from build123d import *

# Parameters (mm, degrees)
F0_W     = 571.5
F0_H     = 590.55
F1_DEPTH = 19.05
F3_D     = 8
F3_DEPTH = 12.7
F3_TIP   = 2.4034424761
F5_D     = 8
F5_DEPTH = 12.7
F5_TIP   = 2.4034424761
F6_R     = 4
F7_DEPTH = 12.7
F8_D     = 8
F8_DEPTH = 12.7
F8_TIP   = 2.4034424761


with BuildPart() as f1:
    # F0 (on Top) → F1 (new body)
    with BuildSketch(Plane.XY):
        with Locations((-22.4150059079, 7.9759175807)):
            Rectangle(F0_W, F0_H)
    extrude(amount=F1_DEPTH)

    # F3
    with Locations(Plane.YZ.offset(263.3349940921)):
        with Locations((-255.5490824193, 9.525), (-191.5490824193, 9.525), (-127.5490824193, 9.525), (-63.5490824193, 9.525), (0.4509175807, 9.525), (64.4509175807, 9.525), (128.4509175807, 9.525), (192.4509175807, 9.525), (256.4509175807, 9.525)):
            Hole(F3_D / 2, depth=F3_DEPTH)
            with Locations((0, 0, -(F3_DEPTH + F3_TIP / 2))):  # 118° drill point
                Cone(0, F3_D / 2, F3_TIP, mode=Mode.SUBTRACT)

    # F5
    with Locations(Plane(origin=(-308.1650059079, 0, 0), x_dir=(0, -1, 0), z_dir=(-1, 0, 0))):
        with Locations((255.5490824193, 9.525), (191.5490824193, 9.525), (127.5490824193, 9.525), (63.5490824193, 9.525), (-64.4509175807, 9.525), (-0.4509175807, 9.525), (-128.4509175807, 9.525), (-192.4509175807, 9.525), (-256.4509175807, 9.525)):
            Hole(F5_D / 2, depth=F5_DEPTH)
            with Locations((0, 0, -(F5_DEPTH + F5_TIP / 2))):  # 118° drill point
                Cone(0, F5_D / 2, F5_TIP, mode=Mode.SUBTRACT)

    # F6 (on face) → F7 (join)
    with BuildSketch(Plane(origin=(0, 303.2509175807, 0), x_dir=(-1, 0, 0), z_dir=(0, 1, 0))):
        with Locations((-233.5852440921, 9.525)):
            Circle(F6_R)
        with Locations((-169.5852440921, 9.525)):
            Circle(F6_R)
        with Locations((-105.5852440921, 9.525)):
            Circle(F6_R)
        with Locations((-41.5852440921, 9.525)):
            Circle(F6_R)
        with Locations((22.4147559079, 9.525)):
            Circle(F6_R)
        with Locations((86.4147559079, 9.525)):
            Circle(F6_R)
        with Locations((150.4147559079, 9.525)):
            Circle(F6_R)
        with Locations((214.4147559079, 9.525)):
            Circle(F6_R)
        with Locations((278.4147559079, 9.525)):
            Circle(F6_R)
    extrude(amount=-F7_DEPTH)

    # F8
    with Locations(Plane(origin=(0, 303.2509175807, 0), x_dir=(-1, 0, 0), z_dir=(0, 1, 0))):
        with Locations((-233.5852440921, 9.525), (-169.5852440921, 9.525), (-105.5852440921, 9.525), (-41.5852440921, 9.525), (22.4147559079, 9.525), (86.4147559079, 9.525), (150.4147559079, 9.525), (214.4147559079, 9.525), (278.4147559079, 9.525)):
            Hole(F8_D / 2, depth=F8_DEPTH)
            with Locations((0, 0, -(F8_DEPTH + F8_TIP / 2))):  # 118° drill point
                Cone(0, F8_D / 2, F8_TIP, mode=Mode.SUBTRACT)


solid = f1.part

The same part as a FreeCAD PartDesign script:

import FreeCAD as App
import Part
import Sketcher

V = App.Vector
Q = App.Units.Quantity

doc = App.newDocument("Part")
params = doc.addObject("Spreadsheet::Sheet", "Params")
for row, (alias, value) in enumerate([
    ("sketch1_width", "22.5 in"),
    ("sketch1_height", "23.25 in"),
    ("pad1_length", "0.75 in"),
    ("hole_diameter", "8 mm"),
    ("hole_depth", "0.5 in"),
    ("hole2_diameter", "8 mm"),
    ("hole2_depth", "0.5 in"),
    ("pad2_length", "0.5 in"),
    ("hole3_diameter", "8 mm"),
    ("hole3_depth", "0.5 in"),
], start=1):
    params.set(f"A{row}", alias)
    params.set(f"B{row}", "=" + value)
    params.setAlias(f"B{row}", alias)

body = doc.addObject("PartDesign::Body", "Body")

# Sketch on XY plane
sketch1 = body.newObject("Sketcher::SketchObject", "Sketch")
sketch1.AttachmentSupport = (doc.getObject("XY_Plane"), [""])
sketch1.MapMode = "FlatFace"
sketch1.addGeometry(Part.LineSegment(V(-308, 303, 0), V(-308, -287, 0)), False)
sketch1.addGeometry(Part.LineSegment(V(-308, -287, 0), V(263, -287, 0)), False)
sketch1.addGeometry(Part.LineSegment(V(263, -287, 0), V(263, 303, 0)), False)
sketch1.addGeometry(Part.LineSegment(V(263, 303, 0), V(-308, 303, 0)), False)
sketch1.addConstraint(Sketcher.Constraint("Coincident", 0, 2, 1, 1))
sketch1.addConstraint(Sketcher.Constraint("Coincident", 1, 2, 2, 1))
sketch1.addConstraint(Sketcher.Constraint("Coincident", 2, 2, 3, 1))
sketch1.addConstraint(Sketcher.Constraint("Coincident", 3, 2, 0, 1))
sketch1.addConstraint(Sketcher.Constraint("Vertical", 0))
sketch1.addConstraint(Sketcher.Constraint("Horizontal", 1))
sketch1.addConstraint(Sketcher.Constraint("Vertical", 2))
sketch1.addConstraint(Sketcher.Constraint("Horizontal", 3))
sketch1.addConstraint(Sketcher.Constraint("DistanceX", 1, 1, 1, 2, Q("22.5 in")))
sketch1.addConstraint(Sketcher.Constraint("DistanceY", 0, 2, 0, 1, Q("23.25 in")))
sketch1.addConstraint(Sketcher.Constraint("DistanceX", 0, 2, -1, 1, 308.165006))
sketch1.addConstraint(Sketcher.Constraint("DistanceY", 0, 2, -1, 1, 287.299082))
sketch1.setExpression("Constraints[8]", "Params.sketch1_width")
sketch1.setExpression("Constraints[9]", "Params.sketch1_height")
pad1 = body.newObject("PartDesign::Pad", "Pad")
pad1.Profile = sketch1
pad1.setExpression("Length", "Params.pad1_length")

# Sketch on YZ plane
sketch2 = body.newObject("Sketcher::SketchObject", "Sketch001")
sketch2.AttachmentSupport = (doc.getObject("YZ_Plane"), [""])
sketch2.MapMode = "FlatFace"
sketch2.AttachmentOffset = App.Placement(V(0, 0, 263.334994), App.Rotation())
sketch2.addGeometry(Part.Circle(V(-255.5, 9.5, 0), V(0, 0, 1), 4), False)
sketch2.addGeometry(Part.Circle(V(-191.5, 9.5, 0), V(0, 0, 1), 4), False)
sketch2.addGeometry(Part.Circle(V(-127.5, 9.5, 0), V(0, 0, 1), 4), False)
sketch2.addGeometry(Part.Circle(V(-63.5, 9.5, 0), V(0, 0, 1), 4), False)
sketch2.addGeometry(Part.Circle(V(0.5, 9.5, 0), V(0, 0, 1), 4), False)
sketch2.addGeometry(Part.Circle(V(64.5, 9.5, 0), V(0, 0, 1), 4), False)
sketch2.addGeometry(Part.Circle(V(128.5, 9.5, 0), V(0, 0, 1), 4), False)
sketch2.addGeometry(Part.Circle(V(192.5, 9.5, 0), V(0, 0, 1), 4), False)
sketch2.addGeometry(Part.Circle(V(256.5, 9.5, 0), V(0, 0, 1), 4), False)
sketch2.addConstraint(Sketcher.Constraint("Equal", 0, 1))
sketch2.addConstraint(Sketcher.Constraint("Equal", 1, 2))
sketch2.addConstraint(Sketcher.Constraint("Equal", 2, 3))
sketch2.addConstraint(Sketcher.Constraint("Equal", 3, 4))
sketch2.addConstraint(Sketcher.Constraint("Equal", 4, 5))
sketch2.addConstraint(Sketcher.Constraint("Equal", 5, 6))
sketch2.addConstraint(Sketcher.Constraint("Equal", 6, 7))
sketch2.addConstraint(Sketcher.Constraint("Equal", 7, 8))
sketch2.addConstraint(Sketcher.Constraint("Horizontal", 0, 3, 1, 3))
sketch2.addConstraint(Sketcher.Constraint("Horizontal", 1, 3, 2, 3))
sketch2.addConstraint(Sketcher.Constraint("Horizontal", 2, 3, 3, 3))
sketch2.addConstraint(Sketcher.Constraint("Horizontal", 3, 3, 4, 3))
sketch2.addConstraint(Sketcher.Constraint("Horizontal", 4, 3, 5, 3))
sketch2.addConstraint(Sketcher.Constraint("Horizontal", 5, 3, 6, 3))
sketch2.addConstraint(Sketcher.Constraint("Horizontal", 6, 3, 7, 3))
sketch2.addConstraint(Sketcher.Constraint("Horizontal", 7, 3, 8, 3))
sketch2.addConstraint(Sketcher.Constraint("Diameter", 0, 8.0))
sketch2.addConstraint(Sketcher.Constraint("DistanceY", -1, 1, 0, 3, Q("0.375 in")))
sketch2.addConstraint(Sketcher.Constraint("DistanceX", 0, 3, 1, 3, 64.0))
sketch2.addConstraint(Sketcher.Constraint("DistanceX", 1, 3, 2, 3, 64.0))
sketch2.addConstraint(Sketcher.Constraint("DistanceX", 2, 3, 3, 3, 64.0))
sketch2.addConstraint(Sketcher.Constraint("DistanceX", 3, 3, 4, 3, 64.0))
sketch2.addConstraint(Sketcher.Constraint("DistanceX", 4, 3, 5, 3, 64.0))
sketch2.addConstraint(Sketcher.Constraint("DistanceX", 5, 3, 6, 3, 64.0))
sketch2.addConstraint(Sketcher.Constraint("DistanceX", 6, 3, 7, 3, 64.0))
sketch2.addConstraint(Sketcher.Constraint("DistanceX", 7, 3, 8, 3, 64.0))
sketch2.addConstraint(Sketcher.Constraint("DistanceX", 0, 3, -1, 1, 255.549082))
doc.recompute()
hole = body.newObject("PartDesign::Hole", "Hole")
hole.Profile = sketch2
hole.ThreadType = "None"
hole.setExpression("Diameter", "Params.hole_diameter")
hole.DepthType = "Dimension"
hole.setExpression("Depth", "Params.hole_depth")
hole.DrillPoint = "Angled"
hole.DrillPointAngle = 118

# Sketch on YZ plane
sketch3 = body.newObject("Sketcher::SketchObject", "Sketch002")
sketch3.AttachmentSupport = (doc.getObject("YZ_Plane"), [""])
sketch3.MapMode = "FlatFace"
sketch3.AttachmentOffset = App.Placement(V(0, 0, -308.165006), App.Rotation())
sketch3.addGeometry(Part.Circle(V(-255.5, 9.5, 0), V(0, 0, 1), 4), False)
sketch3.addGeometry(Part.Circle(V(-191.5, 9.5, 0), V(0, 0, 1), 4), False)
sketch3.addGeometry(Part.Circle(V(-127.5, 9.5, 0), V(0, 0, 1), 4), False)
sketch3.addGeometry(Part.Circle(V(-63.5, 9.5, 0), V(0, 0, 1), 4), False)
sketch3.addGeometry(Part.Circle(V(64.5, 9.5, 0), V(0, 0, 1), 4), False)
sketch3.addGeometry(Part.Circle(V(0.5, 9.5, 0), V(0, 0, 1), 4), False)
sketch3.addGeometry(Part.Circle(V(128.5, 9.5, 0), V(0, 0, 1), 4), False)
sketch3.addGeometry(Part.Circle(V(192.5, 9.5, 0), V(0, 0, 1), 4), False)
sketch3.addGeometry(Part.Circle(V(256.5, 9.5, 0), V(0, 0, 1), 4), False)
sketch3.addConstraint(Sketcher.Constraint("Equal", 0, 1))
sketch3.addConstraint(Sketcher.Constraint("Equal", 1, 2))
sketch3.addConstraint(Sketcher.Constraint("Equal", 2, 3))
sketch3.addConstraint(Sketcher.Constraint("Equal", 3, 4))
sketch3.addConstraint(Sketcher.Constraint("Equal", 4, 5))
sketch3.addConstraint(Sketcher.Constraint("Equal", 5, 6))
sketch3.addConstraint(Sketcher.Constraint("Equal", 6, 7))
sketch3.addConstraint(Sketcher.Constraint("Equal", 7, 8))
sketch3.addConstraint(Sketcher.Constraint("Horizontal", 0, 3, 1, 3))
sketch3.addConstraint(Sketcher.Constraint("Horizontal", 1, 3, 2, 3))
sketch3.addConstraint(Sketcher.Constraint("Horizontal", 2, 3, 3, 3))
sketch3.addConstraint(Sketcher.Constraint("Horizontal", 3, 3, 4, 3))
sketch3.addConstraint(Sketcher.Constraint("Horizontal", 4, 3, 5, 3))
sketch3.addConstraint(Sketcher.Constraint("Horizontal", 5, 3, 6, 3))
sketch3.addConstraint(Sketcher.Constraint("Horizontal", 6, 3, 7, 3))
sketch3.addConstraint(Sketcher.Constraint("Horizontal", 7, 3, 8, 3))
sketch3.addConstraint(Sketcher.Constraint("Diameter", 0, 8.0))
sketch3.addConstraint(Sketcher.Constraint("DistanceY", -1, 1, 0, 3, Q("0.375 in")))
sketch3.addConstraint(Sketcher.Constraint("DistanceX", 0, 3, 1, 3, 64.0))
sketch3.addConstraint(Sketcher.Constraint("DistanceX", 1, 3, 2, 3, 64.0))
sketch3.addConstraint(Sketcher.Constraint("DistanceX", 2, 3, 3, 3, 64.0))
sketch3.addConstraint(Sketcher.Constraint("DistanceX", 3, 3, 4, 3, 128.0))
sketch3.addConstraint(Sketcher.Constraint("DistanceX", 3, 3, 5, 3, 64.0))
sketch3.addConstraint(Sketcher.Constraint("DistanceX", 4, 3, 6, 3, 64.0))
sketch3.addConstraint(Sketcher.Constraint("DistanceX", 6, 3, 7, 3, 64.0))
sketch3.addConstraint(Sketcher.Constraint("DistanceX", 7, 3, 8, 3, 64.0))
sketch3.addConstraint(Sketcher.Constraint("DistanceX", 0, 3, -1, 1, 255.549082))
doc.recompute()
hole2 = body.newObject("PartDesign::Hole", "Hole001")
hole2.Profile = sketch3
hole2.ThreadType = "None"
hole2.setExpression("Diameter", "Params.hole2_diameter")
hole2.DepthType = "Dimension"
hole2.setExpression("Depth", "Params.hole2_depth")
hole2.DrillPoint = "Angled"
hole2.DrillPointAngle = 118
hole2.Reversed = True

# Sketch on XZ plane
sketch4 = body.newObject("Sketcher::SketchObject", "Sketch003")
sketch4.AttachmentSupport = (doc.getObject("XZ_Plane"), [""])
sketch4.MapMode = "FlatFace"
sketch4.AttachmentOffset = App.Placement(V(0, 0, -303.250918), App.Rotation())
sketch4.addGeometry(Part.Circle(V(233.6, 9.5, 0), V(0, 0, 1), 4), False)
sketch4.addGeometry(Part.Circle(V(169.6, 9.5, 0), V(0, 0, 1), 4), False)
sketch4.addGeometry(Part.Circle(V(105.6, 9.5, 0), V(0, 0, 1), 4), False)
sketch4.addGeometry(Part.Circle(V(41.6, 9.5, 0), V(0, 0, 1), 4), False)
sketch4.addGeometry(Part.Circle(V(-22.4, 9.5, 0), V(0, 0, 1), 4), False)
sketch4.addGeometry(Part.Circle(V(-86.4, 9.5, 0), V(0, 0, 1), 4), False)
sketch4.addGeometry(Part.Circle(V(-150.4, 9.5, 0), V(0, 0, 1), 4), False)
sketch4.addGeometry(Part.Circle(V(-214.4, 9.5, 0), V(0, 0, 1), 4), False)
sketch4.addGeometry(Part.Circle(V(-278.4, 9.5, 0), V(0, 0, 1), 4), False)
sketch4.addConstraint(Sketcher.Constraint("Equal", 0, 1))
sketch4.addConstraint(Sketcher.Constraint("Equal", 1, 2))
sketch4.addConstraint(Sketcher.Constraint("Equal", 2, 3))
sketch4.addConstraint(Sketcher.Constraint("Equal", 3, 4))
sketch4.addConstraint(Sketcher.Constraint("Equal", 4, 5))
sketch4.addConstraint(Sketcher.Constraint("Equal", 5, 6))
sketch4.addConstraint(Sketcher.Constraint("Equal", 6, 7))
sketch4.addConstraint(Sketcher.Constraint("Equal", 7, 8))
sketch4.addConstraint(Sketcher.Constraint("Horizontal", 0, 3, 1, 3))
sketch4.addConstraint(Sketcher.Constraint("Horizontal", 1, 3, 2, 3))
sketch4.addConstraint(Sketcher.Constraint("Horizontal", 2, 3, 3, 3))
sketch4.addConstraint(Sketcher.Constraint("Horizontal", 3, 3, 4, 3))
sketch4.addConstraint(Sketcher.Constraint("Horizontal", 4, 3, 5, 3))
sketch4.addConstraint(Sketcher.Constraint("Horizontal", 5, 3, 6, 3))
sketch4.addConstraint(Sketcher.Constraint("Horizontal", 6, 3, 7, 3))
sketch4.addConstraint(Sketcher.Constraint("Horizontal", 7, 3, 8, 3))
sketch4.addConstraint(Sketcher.Constraint("Diameter", 0, 8.0))
sketch4.addConstraint(Sketcher.Constraint("DistanceY", -1, 1, 0, 3, Q("0.375 in")))
sketch4.addConstraint(Sketcher.Constraint("DistanceX", 1, 3, 0, 3, 64.0))
sketch4.addConstraint(Sketcher.Constraint("DistanceX", 2, 3, 1, 3, 64.0))
sketch4.addConstraint(Sketcher.Constraint("DistanceX", 3, 3, 2, 3, 64.0))
sketch4.addConstraint(Sketcher.Constraint("DistanceX", 4, 3, 3, 3, 64.0))
sketch4.addConstraint(Sketcher.Constraint("DistanceX", 5, 3, 4, 3, 64.0))
sketch4.addConstraint(Sketcher.Constraint("DistanceX", 6, 3, 5, 3, 64.0))
sketch4.addConstraint(Sketcher.Constraint("DistanceX", 7, 3, 6, 3, 64.0))
sketch4.addConstraint(Sketcher.Constraint("DistanceX", 8, 3, 7, 3, 64.0))
sketch4.addConstraint(Sketcher.Constraint("DistanceX", -1, 1, 0, 3, 233.585244))
pad2 = body.newObject("PartDesign::Pad", "Pad001")
pad2.Profile = sketch4
pad2.setExpression("Length", "Params.pad2_length")

# Sketch on XZ plane
sketch5 = body.newObject("Sketcher::SketchObject", "Sketch004")
sketch5.AttachmentSupport = (doc.getObject("XZ_Plane"), [""])
sketch5.MapMode = "FlatFace"
sketch5.AttachmentOffset = App.Placement(V(0, 0, -303.250918), App.Rotation())
sketch5.addGeometry(Part.Circle(V(233.6, 9.5, 0), V(0, 0, 1), 4), False)
sketch5.addGeometry(Part.Circle(V(169.6, 9.5, 0), V(0, 0, 1), 4), False)
sketch5.addGeometry(Part.Circle(V(105.6, 9.5, 0), V(0, 0, 1), 4), False)
sketch5.addGeometry(Part.Circle(V(41.6, 9.5, 0), V(0, 0, 1), 4), False)
sketch5.addGeometry(Part.Circle(V(-22.4, 9.5, 0), V(0, 0, 1), 4), False)
sketch5.addGeometry(Part.Circle(V(-86.4, 9.5, 0), V(0, 0, 1), 4), False)
sketch5.addGeometry(Part.Circle(V(-150.4, 9.5, 0), V(0, 0, 1), 4), False)
sketch5.addGeometry(Part.Circle(V(-214.4, 9.5, 0), V(0, 0, 1), 4), False)
sketch5.addGeometry(Part.Circle(V(-278.4, 9.5, 0), V(0, 0, 1), 4), False)
sketch5.addConstraint(Sketcher.Constraint("Equal", 0, 1))
sketch5.addConstraint(Sketcher.Constraint("Equal", 1, 2))
sketch5.addConstraint(Sketcher.Constraint("Equal", 2, 3))
sketch5.addConstraint(Sketcher.Constraint("Equal", 3, 4))
sketch5.addConstraint(Sketcher.Constraint("Equal", 4, 5))
sketch5.addConstraint(Sketcher.Constraint("Equal", 5, 6))
sketch5.addConstraint(Sketcher.Constraint("Equal", 6, 7))
sketch5.addConstraint(Sketcher.Constraint("Equal", 7, 8))
sketch5.addConstraint(Sketcher.Constraint("Horizontal", 0, 3, 1, 3))
sketch5.addConstraint(Sketcher.Constraint("Horizontal", 1, 3, 2, 3))
sketch5.addConstraint(Sketcher.Constraint("Horizontal", 2, 3, 3, 3))
sketch5.addConstraint(Sketcher.Constraint("Horizontal", 3, 3, 4, 3))
sketch5.addConstraint(Sketcher.Constraint("Horizontal", 4, 3, 5, 3))
sketch5.addConstraint(Sketcher.Constraint("Horizontal", 5, 3, 6, 3))
sketch5.addConstraint(Sketcher.Constraint("Horizontal", 6, 3, 7, 3))
sketch5.addConstraint(Sketcher.Constraint("Horizontal", 7, 3, 8, 3))
sketch5.addConstraint(Sketcher.Constraint("Diameter", 0, 8.0))
sketch5.addConstraint(Sketcher.Constraint("DistanceY", -1, 1, 0, 3, Q("0.375 in")))
sketch5.addConstraint(Sketcher.Constraint("DistanceX", 1, 3, 0, 3, 64.0))
sketch5.addConstraint(Sketcher.Constraint("DistanceX", 2, 3, 1, 3, 64.0))
sketch5.addConstraint(Sketcher.Constraint("DistanceX", 3, 3, 2, 3, 64.0))
sketch5.addConstraint(Sketcher.Constraint("DistanceX", 4, 3, 3, 3, 64.0))
sketch5.addConstraint(Sketcher.Constraint("DistanceX", 5, 3, 4, 3, 64.0))
sketch5.addConstraint(Sketcher.Constraint("DistanceX", 6, 3, 5, 3, 64.0))
sketch5.addConstraint(Sketcher.Constraint("DistanceX", 7, 3, 6, 3, 64.0))
sketch5.addConstraint(Sketcher.Constraint("DistanceX", 8, 3, 7, 3, 64.0))
sketch5.addConstraint(Sketcher.Constraint("DistanceX", -1, 1, 0, 3, 233.585244))
doc.recompute()
hole3 = body.newObject("PartDesign::Hole", "Hole002")
hole3.Profile = sketch5
hole3.ThreadType = "None"
hole3.setExpression("Diameter", "Params.hole3_diameter")
hole3.DepthType = "Dimension"
hole3.setExpression("Depth", "Params.hole3_depth")
hole3.DrillPoint = "Angled"
hole3.DrillPointAngle = 118
hole3.Reversed = True

doc.recompute()
